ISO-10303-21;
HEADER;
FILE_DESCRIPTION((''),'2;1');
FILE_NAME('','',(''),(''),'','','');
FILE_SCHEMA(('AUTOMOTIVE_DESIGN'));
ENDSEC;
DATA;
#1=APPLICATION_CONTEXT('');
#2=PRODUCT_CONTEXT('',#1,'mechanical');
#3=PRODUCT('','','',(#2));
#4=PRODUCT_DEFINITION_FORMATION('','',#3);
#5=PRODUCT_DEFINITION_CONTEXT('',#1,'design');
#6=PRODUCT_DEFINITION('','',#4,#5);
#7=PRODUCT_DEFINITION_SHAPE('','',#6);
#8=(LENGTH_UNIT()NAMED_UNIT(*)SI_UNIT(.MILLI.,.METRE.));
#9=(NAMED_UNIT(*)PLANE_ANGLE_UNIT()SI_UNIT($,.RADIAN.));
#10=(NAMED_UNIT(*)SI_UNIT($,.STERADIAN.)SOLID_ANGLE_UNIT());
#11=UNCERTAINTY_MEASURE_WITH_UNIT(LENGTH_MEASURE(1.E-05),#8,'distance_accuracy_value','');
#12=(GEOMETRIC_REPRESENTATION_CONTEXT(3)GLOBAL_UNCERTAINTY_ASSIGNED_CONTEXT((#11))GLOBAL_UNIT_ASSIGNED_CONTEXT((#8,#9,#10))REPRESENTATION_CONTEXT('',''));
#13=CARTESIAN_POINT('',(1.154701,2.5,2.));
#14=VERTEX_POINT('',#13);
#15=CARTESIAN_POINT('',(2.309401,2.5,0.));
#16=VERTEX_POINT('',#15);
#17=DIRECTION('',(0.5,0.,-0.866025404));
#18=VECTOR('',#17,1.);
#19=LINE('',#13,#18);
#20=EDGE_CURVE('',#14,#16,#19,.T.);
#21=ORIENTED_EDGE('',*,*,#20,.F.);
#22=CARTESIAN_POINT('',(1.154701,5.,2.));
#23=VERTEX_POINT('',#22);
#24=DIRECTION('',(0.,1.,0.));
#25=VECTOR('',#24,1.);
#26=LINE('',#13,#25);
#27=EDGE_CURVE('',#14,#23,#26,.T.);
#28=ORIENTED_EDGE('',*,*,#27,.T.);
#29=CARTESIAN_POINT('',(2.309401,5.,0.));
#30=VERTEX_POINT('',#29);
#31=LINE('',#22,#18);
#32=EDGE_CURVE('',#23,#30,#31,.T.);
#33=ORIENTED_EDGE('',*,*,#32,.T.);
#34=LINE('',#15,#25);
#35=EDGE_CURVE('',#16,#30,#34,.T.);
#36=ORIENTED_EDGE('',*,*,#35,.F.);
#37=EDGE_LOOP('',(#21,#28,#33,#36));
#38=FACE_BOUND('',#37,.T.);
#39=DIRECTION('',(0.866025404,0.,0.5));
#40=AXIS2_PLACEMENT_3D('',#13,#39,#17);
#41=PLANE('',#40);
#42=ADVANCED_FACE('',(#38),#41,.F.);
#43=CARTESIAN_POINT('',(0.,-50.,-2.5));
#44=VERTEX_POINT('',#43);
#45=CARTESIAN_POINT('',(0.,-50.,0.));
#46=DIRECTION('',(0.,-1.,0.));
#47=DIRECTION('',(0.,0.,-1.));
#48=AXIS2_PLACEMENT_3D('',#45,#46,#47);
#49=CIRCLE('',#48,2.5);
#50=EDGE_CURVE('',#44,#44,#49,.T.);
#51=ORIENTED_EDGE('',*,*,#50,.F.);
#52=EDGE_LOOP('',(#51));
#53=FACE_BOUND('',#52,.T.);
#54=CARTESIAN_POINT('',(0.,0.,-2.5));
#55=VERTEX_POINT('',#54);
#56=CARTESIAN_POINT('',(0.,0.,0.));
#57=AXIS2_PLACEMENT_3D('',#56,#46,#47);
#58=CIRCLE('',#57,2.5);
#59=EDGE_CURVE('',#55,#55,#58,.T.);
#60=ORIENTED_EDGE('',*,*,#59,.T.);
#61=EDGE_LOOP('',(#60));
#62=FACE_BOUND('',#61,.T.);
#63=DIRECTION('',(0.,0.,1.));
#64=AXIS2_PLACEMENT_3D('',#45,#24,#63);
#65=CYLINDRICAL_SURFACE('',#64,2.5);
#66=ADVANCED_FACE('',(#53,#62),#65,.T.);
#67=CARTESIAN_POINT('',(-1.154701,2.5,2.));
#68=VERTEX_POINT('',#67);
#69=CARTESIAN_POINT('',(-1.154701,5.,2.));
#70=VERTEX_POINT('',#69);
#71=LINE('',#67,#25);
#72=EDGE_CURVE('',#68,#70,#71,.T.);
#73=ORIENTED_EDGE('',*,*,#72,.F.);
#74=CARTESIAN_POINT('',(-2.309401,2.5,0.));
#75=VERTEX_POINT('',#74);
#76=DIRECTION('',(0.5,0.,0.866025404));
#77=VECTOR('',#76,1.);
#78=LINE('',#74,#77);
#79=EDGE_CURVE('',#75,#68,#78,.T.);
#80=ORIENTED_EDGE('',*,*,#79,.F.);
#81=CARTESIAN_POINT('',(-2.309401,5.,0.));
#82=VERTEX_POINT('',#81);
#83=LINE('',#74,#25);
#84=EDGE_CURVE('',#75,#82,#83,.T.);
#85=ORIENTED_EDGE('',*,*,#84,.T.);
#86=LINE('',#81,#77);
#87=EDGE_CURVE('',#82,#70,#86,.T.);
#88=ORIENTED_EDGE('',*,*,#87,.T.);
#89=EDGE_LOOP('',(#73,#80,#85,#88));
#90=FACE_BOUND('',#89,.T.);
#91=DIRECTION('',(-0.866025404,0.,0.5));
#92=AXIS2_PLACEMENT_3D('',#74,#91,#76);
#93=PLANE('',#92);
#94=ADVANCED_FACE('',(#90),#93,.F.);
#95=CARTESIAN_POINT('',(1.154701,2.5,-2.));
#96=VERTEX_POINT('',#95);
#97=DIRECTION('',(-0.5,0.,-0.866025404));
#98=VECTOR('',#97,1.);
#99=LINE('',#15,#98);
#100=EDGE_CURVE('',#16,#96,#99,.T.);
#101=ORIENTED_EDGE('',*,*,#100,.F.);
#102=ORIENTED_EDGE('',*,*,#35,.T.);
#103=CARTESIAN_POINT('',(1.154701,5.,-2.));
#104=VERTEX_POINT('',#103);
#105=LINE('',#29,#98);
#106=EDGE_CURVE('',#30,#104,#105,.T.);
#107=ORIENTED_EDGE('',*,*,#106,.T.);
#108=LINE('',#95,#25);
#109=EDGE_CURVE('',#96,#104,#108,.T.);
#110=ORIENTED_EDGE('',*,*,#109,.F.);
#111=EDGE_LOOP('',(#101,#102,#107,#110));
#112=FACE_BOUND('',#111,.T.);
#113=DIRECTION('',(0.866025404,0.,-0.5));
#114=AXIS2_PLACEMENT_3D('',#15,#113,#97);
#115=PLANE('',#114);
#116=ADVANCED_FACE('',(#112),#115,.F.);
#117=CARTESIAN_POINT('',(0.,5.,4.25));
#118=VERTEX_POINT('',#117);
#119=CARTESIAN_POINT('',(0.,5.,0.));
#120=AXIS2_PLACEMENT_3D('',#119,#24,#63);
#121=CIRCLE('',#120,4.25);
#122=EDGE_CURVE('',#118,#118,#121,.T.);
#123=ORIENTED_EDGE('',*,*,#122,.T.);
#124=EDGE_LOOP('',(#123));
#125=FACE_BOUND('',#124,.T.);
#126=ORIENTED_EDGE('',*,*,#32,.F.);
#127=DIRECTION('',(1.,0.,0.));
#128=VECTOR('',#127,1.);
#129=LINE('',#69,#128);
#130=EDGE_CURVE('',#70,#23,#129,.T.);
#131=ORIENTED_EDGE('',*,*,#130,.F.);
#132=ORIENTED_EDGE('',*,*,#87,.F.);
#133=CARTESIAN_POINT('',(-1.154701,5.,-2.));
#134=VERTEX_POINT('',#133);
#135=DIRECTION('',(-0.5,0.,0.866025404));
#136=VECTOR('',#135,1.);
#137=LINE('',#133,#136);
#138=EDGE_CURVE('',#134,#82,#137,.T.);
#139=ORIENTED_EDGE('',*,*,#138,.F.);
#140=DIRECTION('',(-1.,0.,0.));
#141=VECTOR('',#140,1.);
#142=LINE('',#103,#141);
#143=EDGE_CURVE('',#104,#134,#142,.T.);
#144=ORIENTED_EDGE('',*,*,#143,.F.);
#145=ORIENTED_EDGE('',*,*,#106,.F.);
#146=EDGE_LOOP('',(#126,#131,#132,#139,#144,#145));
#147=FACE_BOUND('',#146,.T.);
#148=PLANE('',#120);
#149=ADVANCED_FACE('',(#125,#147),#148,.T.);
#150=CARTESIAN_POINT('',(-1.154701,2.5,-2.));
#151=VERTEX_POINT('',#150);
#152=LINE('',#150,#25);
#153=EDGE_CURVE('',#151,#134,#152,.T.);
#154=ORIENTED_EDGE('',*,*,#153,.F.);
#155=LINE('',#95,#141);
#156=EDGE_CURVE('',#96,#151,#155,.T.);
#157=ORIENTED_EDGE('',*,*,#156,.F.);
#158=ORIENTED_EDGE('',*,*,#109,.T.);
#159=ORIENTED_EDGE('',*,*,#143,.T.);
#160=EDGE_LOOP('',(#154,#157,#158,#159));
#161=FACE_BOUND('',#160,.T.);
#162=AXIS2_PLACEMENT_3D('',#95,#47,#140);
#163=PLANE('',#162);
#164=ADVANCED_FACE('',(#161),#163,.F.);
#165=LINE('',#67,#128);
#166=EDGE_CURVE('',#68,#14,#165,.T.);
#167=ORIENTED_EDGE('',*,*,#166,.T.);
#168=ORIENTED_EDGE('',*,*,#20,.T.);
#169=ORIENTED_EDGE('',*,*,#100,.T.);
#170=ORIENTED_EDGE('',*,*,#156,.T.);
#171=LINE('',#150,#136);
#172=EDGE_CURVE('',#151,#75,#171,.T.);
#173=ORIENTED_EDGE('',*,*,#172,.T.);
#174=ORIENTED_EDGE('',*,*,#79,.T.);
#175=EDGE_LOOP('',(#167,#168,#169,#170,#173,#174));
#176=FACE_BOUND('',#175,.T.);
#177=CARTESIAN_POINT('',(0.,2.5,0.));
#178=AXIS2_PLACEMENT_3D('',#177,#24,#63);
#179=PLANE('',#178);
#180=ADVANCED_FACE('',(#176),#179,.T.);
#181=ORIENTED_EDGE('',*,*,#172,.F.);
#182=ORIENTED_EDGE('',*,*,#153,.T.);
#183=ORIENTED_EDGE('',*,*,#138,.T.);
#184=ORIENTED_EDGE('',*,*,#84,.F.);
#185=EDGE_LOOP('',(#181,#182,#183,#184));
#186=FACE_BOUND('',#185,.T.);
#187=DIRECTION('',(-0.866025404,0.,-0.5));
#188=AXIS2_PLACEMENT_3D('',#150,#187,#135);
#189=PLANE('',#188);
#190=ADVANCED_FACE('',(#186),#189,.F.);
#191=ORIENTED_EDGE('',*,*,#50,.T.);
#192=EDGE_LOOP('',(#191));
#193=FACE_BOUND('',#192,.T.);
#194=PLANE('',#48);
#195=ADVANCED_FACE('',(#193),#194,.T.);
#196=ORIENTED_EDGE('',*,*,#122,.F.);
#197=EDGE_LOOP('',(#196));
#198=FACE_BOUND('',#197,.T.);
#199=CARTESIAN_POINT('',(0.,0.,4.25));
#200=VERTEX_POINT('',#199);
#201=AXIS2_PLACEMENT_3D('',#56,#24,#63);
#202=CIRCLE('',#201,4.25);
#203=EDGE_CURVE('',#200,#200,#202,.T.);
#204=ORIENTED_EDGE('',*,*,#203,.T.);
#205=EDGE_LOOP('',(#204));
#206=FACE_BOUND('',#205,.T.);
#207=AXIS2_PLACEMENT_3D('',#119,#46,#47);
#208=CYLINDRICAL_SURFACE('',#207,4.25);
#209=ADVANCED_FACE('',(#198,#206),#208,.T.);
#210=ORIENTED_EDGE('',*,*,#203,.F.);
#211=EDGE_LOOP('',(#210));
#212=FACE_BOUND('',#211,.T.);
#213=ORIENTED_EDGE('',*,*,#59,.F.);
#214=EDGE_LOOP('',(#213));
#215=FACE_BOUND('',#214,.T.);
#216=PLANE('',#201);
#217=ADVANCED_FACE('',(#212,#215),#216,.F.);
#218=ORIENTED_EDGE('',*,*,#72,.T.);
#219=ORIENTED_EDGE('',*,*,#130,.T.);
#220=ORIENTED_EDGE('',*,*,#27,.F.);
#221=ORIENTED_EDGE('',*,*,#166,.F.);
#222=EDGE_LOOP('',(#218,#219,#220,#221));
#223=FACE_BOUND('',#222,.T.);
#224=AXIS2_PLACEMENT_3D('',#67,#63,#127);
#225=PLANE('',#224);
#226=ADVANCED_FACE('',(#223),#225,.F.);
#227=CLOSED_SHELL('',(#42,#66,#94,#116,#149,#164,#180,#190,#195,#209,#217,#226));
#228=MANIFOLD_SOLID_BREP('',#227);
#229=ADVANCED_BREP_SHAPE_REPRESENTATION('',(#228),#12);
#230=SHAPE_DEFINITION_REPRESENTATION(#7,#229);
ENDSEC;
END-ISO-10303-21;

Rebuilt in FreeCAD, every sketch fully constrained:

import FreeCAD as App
import Part
import Sketcher

V = App.Vector
Q = App.Units.Quantity


def add_polygon(sketch, points):
    """Adds a closed chain of lines whose ends are joined by coincident constraints."""
    first, n = sketch.GeometryCount, len(points)
    for a, b in zip(points, points[1:] + points[:1]):
        sketch.addGeometry(Part.LineSegment(App.Vector(*a, 0), App.Vector(*b, 0)), False)
    for i in range(n):
        sketch.addConstraint(Sketcher.Constraint("Coincident", first + i, 2, first + (i + 1) % n, 1))

doc = App.newDocument("Part")
body = doc.addObject("PartDesign::Body", "Body")

# Sketch on XZ plane
sketch1 = body.newObject("Sketcher::SketchObject", "Sketch")
sketch1.AttachmentSupport = (doc.getObject("XZ_Plane"), [""])
sketch1.MapMode = "FlatFace"
sketch1.addGeometry(Part.Circle(V(0, 0, 0), V(0, 0, 1), 4.2), False)
sketch1.addConstraint(Sketcher.Constraint("Coincident", 0, 3, -1, 1))
sketch1.addConstraint(Sketcher.Constraint("Diameter", 0, 8.5))
pad1 = body.newObject("PartDesign::Pad", "Pad")
pad1.Profile = sketch1
pad1.Length = 5
pad1.Reversed = True

# Sketch on XZ plane
sketch2 = body.newObject("Sketcher::SketchObject", "Sketch001")
sketch2.AttachmentSupport = (doc.getObject("XZ_Plane"), [""])
sketch2.MapMode = "FlatFace"
sketch2.AttachmentOffset = App.Placement(V(0, 0, -5), App.Rotation())
add_polygon(sketch2, [(2.3, 0), (1.2, -2), (-1.2, -2), (-2.3, 0), (-1.2, 2), (1.2, 2)])  # lines 0-5
sketch2.addConstraint(Sketcher.Constraint("Horizontal", 1))
sketch2.addConstraint(Sketcher.Constraint("Horizontal", 4))
sketch2.addConstraint(Sketcher.Constraint("Symmetric", 0, 2, 3, 2, -1, 1))
sketch2.addConstraint(Sketcher.Constraint("Symmetric", 2, 2, 5, 2, -1, 1))
sketch2.addConstraint(Sketcher.Constraint("PointOnObject", 2, 2, -1))
sketch2.addConstraint(Sketcher.Constraint("Parallel", 2, 5))
sketch2.addConstraint(Sketcher.Constraint("Vertical", 1, 2, 3, 2))
sketch2.addConstraint(Sketcher.Constraint("Angle", 0, Q("-120 deg")))
sketch2.addConstraint(Sketcher.Constraint("DistanceY", 0, 2, -1, 1, 2.0))
sketch2.addConstraint(Sketcher.Constraint("DistanceX", 1, 2, 1, 1, 2.309401))
pocket1 = body.newObject("PartDesign::Pocket", "Pocket")
pocket1.Profile = sketch2
pocket1.Length = 2.5
pocket1.Reversed = True

# Sketch on XZ plane
sketch3 = body.newObject("Sketcher::SketchObject", "Sketch002")
sketch3.AttachmentSupport = (doc.getObject("XZ_Plane"), [""])
sketch3.MapMode = "FlatFace"
sketch3.addGeometry(Part.Circle(V(0, 0, 0), V(0, 0, 1), 2.5), False)
sketch3.addConstraint(Sketcher.Constraint("Coincident", 0, 3, -1, 1))
sketch3.addConstraint(Sketcher.Constraint("Diameter", 0, 5.0))
pad2 = body.newObject("PartDesign::Pad", "Pad001")
pad2.Profile = sketch3
pad2.Length = 50

doc.recompute()
